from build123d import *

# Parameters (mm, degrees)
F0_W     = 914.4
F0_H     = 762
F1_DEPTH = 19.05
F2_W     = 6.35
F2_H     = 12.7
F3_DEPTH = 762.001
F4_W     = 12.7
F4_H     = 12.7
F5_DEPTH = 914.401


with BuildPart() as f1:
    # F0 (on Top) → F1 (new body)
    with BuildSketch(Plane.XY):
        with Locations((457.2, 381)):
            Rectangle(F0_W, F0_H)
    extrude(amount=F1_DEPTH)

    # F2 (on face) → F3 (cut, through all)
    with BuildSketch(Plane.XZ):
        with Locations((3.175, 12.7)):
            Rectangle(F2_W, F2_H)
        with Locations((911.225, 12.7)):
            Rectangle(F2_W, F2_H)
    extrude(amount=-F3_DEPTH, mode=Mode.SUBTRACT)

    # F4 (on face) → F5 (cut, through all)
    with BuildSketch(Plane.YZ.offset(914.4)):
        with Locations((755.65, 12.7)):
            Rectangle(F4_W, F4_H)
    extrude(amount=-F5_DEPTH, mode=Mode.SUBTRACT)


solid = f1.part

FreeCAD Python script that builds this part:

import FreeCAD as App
import Part
import Sketcher

V = App.Vector
Q = App.Units.Quantity

doc = App.newDocument("Part")
params = doc.addObject("Spreadsheet::Sheet", "Params")
for row, (alias, value) in enumerate([
    ("sketch1_width", "36 in"),
    ("sketch1_height", "30 in"),
    ("pad1_length", "0.75 in"),
    ("sketch2_height", "0.5 in"),
    ("sketch2_width", "0.25 in"),
    ("sketch3_width", "0.5 in"),
], start=1):
    params.set(f"A{row}", alias)
    params.set(f"B{row}", "=" + value)
    params.setAlias(f"B{row}", alias)

body = doc.addObject("PartDesign::Body", "Body")

sketch1 = doc.addObject("Sketcher::SketchObject", "Sketch")
body.addObject(sketch1)
sketch1.AttachmentSupport = (doc.XY_Plane, [""])
sketch1.MapMode = "FlatFace"
sketch1.addGeometry([
    Part.LineSegment(V(0, 762, 0), V(0, 0, 0)),
    Part.LineSegment(V(0, 0, 0), V(914, 0, 0)),
    Part.LineSegment(V(914, 0, 0), V(914, 762, 0)),
    Part.LineSegment(V(914, 762, 0), V(0, 762, 0)),
], False)
sketch1.addConstraint([
    Sketcher.Constraint("Coincident", 0, 2, 1, 1),
    Sketcher.Constraint("Coincident", 1, 2, 2, 1),
    Sketcher.Constraint("Coincident", 2, 2, 3, 1),
    Sketcher.Constraint("Coincident", 3, 2, 0, 1),
    Sketcher.Constraint("Vertical", 0),
    Sketcher.Constraint("Horizontal", 1),
    Sketcher.Constraint("Vertical", 2),
    Sketcher.Constraint("Horizontal", 3),
    Sketcher.Constraint("Coincident", 0, 2, -1, 1),
    Sketcher.Constraint("DistanceX", 1, 1, 1, 2, Q("36 in")),
    Sketcher.Constraint("DistanceY", 0, 2, 0, 1, Q("30 in")),
])
sketch1.setExpression("Constraints[9]", "Params.sketch1_width")
sketch1.setExpression("Constraints[10]", "Params.sketch1_height")
pad1 = doc.addObject("PartDesign::Pad", "Pad")
body.addObject(pad1)
pad1.Profile = sketch1
pad1.setExpression("Length", "Params.pad1_length")

sketch2 = doc.addObject("Sketcher::SketchObject", "Sketch001")
body.addObject(sketch2)
sketch2.AttachmentSupport = (doc.XZ_Plane, [""])
sketch2.MapMode = "FlatFace"
sketch2.addGeometry([
    Part.LineSegment(V(0, 19, 0), V(0, 6, 0)),
    Part.LineSegment(V(0, 6, 0), V(6, 6, 0)),
    Part.LineSegment(V(6, 6, 0), V(6, 19, 0)),
    Part.LineSegment(V(6, 19, 0), V(0, 19, 0)),
    Part.LineSegment(V(908, 19, 0), V(908, 6, 0)),
    Part.LineSegment(V(908, 6, 0), V(914, 6, 0)),
    Part.LineSegment(V(914, 6, 0), V(914, 19, 0)),
    Part.LineSegment(V(914, 19, 0), V(908, 19, 0)),
], False)
sketch2.addConstraint([
    Sketcher.Constraint("Coincident", 0, 2, 1, 1),
    Sketcher.Constraint("Coincident", 1, 2, 2, 1),
    Sketcher.Constraint("Coincident", 2, 2, 3, 1),
    Sketcher.Constraint("Coincident", 3, 2, 0, 1),
    Sketcher.Constraint("Coincident", 4, 2, 5, 1),
    Sketcher.Constraint("Coincident", 5, 2, 6, 1),
    Sketcher.Constraint("Coincident", 6, 2, 7, 1),
    Sketcher.Constraint("Coincident", 7, 2, 4, 1),
    Sketcher.Constraint("Vertical", 0),
    Sketcher.Constraint("Horizontal", 1),
    Sketcher.Constraint("Vertical", 2),
    Sketcher.Constraint("Horizontal", 3),
    Sketcher.Constraint("Vertical", 4),
    Sketcher.Constraint("Horizontal", 5),
    Sketcher.Constraint("Vertical", 6),
    Sketcher.Constraint("Horizontal", 7),
    Sketcher.Constraint("PointOnObject", 0, 2, -2),
    Sketcher.Constraint("Horizontal", 1, 2, 4, 2),
    Sketcher.Constraint("Horizontal", 3, 2, 6, 2),
    Sketcher.Constraint("Equal", 3, 5),
    Sketcher.Constraint("DistanceY", 0, 2, 0, 1, Q("0.5 in")),
    Sketcher.Constraint("DistanceX", -1, 1, 5, 2, Q("36 in")),
    Sketcher.Constraint("DistanceX", 1, 1, 1, 2, Q("0.25 in")),
    Sketcher.Constraint("DistanceY", -1, 1, 0, 2, Q("0.25 in")),
])
sketch2.setExpression("Constraints[20]", "Params.sketch2_height")
sketch2.setExpression("Constraints[22]", "Params.sketch2_width")
pocket1 = doc.addObject("PartDesign::Pocket", "Pocket")
body.addObject(pocket1)
pocket1.Profile = sketch2
pocket1.Type = "ThroughAll"

sketch3 = doc.addObject("Sketcher::SketchObject", "Sketch002")
body.addObject(sketch3)
sketch3.AttachmentSupport = (doc.YZ_Plane, [""])
sketch3.MapMode = "FlatFace"
sketch3.AttachmentOffset = App.Placement(V(0, 0, 36 * 25.4), App.Rotation())
sketch3.addGeometry([
    Part.LineSegment(V(749, 19, 0), V(749, 6, 0)),
    Part.LineSegment(V(749, 6, 0), V(762, 6, 0)),
    Part.LineSegment(V(762, 6, 0), V(762, 19, 0)),
    Part.LineSegment(V(762, 19, 0), V(749, 19, 0)),
], False)
sketch3.addConstraint([
    Sketcher.Constraint("Coincident", 0, 2, 1, 1),
    Sketcher.Constraint("Coincident", 1, 2, 2, 1),
    Sketcher.Constraint("Coincident", 2, 2, 3, 1),
    Sketcher.Constraint("Coincident", 3, 2, 0, 1),
    Sketcher.Constraint("Vertical", 0),
    Sketcher.Constraint("Horizontal", 1),
    Sketcher.Constraint("Vertical", 2),
    Sketcher.Constraint("Horizontal", 3),
    Sketcher.Constraint("Equal", 3, 0),
    Sketcher.Constraint("DistanceX", 1, 1, 1, 2, Q("0.5 in")),
    Sketcher.Constraint("DistanceX", -1, 1, 1, 2, Q("30 in")),
    Sketcher.Constraint("DistanceY", -1, 1, 0, 2, Q("0.25 in")),
])
sketch3.setExpression("Constraints[9]", "Params.sketch3_width")
pocket2 = doc.addObject("PartDesign::Pocket", "Pocket001")
body.addObject(pocket2)
pocket2.Profile = sketch3
pocket2.Type = "ThroughAll"

doc.recompute()
